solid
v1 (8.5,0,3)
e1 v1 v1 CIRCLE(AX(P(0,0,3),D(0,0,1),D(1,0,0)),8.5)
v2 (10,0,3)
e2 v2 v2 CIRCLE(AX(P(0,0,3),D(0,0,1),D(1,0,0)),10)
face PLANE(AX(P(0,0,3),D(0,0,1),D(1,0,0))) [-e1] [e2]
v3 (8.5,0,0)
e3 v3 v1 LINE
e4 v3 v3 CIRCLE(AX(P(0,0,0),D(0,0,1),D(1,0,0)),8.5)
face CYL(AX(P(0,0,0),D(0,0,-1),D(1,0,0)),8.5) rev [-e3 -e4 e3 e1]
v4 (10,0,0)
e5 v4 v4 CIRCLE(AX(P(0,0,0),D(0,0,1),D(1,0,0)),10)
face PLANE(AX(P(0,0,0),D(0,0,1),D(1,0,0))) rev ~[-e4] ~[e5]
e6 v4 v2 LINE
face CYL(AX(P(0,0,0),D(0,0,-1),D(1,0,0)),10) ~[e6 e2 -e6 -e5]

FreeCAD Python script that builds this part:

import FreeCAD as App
import Part
import Sketcher
from FreeCAD import Vector
Q = App.Units.Quantity

doc = App.newDocument("Part")
params = doc.addObject("Spreadsheet::Sheet", "Params")
for row, (alias, value) in enumerate([
    ("sketch1_diameter", "20 mm"),
    ("sketch1_diameter2", "17 mm"),
    ("pad1_length", "3 mm"),
], start=1):
    params.set(f"A{row}", alias)
    params.set(f"B{row}", "=" + value)
    params.setAlias(f"B{row}", alias)

body = doc.addObject("PartDesign::Body", "Body")

# Sketch on XY plane
sketch1 = doc.addObject("Sketcher::SketchObject", "Sketch")
body.addObject(sketch1)
sketch1.AttachmentSupport = (doc.XY_Plane, [""])
sketch1.MapMode = "FlatFace"
sketch1.addGeometry(Part.Circle(Vector(0, 0, 0), Vector(0, 0, 1), 10), False)
sketch1.addGeometry(Part.Circle(Vector(0, 0, 0), Vector(0, 0, 1), 8), False)
sketch1.addConstraint(Sketcher.Constraint("Coincident", 0, 3, -1, 1))
sketch1.addConstraint(Sketcher.Constraint("Coincident", 1, 3, -1, 1))
sketch1.addConstraint(Sketcher.Constraint("Diameter", 0, Q("20 mm")))
sketch1.addConstraint(Sketcher.Constraint("Diameter", 1, Q("17 mm")))
sketch1.setExpression("Constraints[2]", "Params.sketch1_diameter")
sketch1.setExpression("Constraints[3]", "Params.sketch1_diameter2")
pad1 = doc.addObject("PartDesign::Pad", "Pad")
body.addObject(pad1)
pad1.Profile = sketch1
pad1.setExpression("Length", "Params.pad1_length")

doc.recompute()
